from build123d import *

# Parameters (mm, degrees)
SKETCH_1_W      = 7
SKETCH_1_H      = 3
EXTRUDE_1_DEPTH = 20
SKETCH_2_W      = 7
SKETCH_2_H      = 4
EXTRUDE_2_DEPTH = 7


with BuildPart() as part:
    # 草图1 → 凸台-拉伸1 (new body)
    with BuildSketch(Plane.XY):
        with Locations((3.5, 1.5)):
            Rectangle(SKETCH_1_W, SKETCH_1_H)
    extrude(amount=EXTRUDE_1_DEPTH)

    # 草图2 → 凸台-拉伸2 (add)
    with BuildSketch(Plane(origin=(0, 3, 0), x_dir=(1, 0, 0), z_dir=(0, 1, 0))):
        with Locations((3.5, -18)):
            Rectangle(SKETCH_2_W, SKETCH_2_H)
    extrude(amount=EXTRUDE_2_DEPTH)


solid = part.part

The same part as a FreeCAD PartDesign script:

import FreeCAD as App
import Part
import Sketcher
from FreeCAD import Vector


def add_polygon(sketch, points):
    """Adds a closed chain of lines whose ends are joined by coincident constraints."""
    first, n = sketch.GeometryCount, len(points)
    for a, b in zip(points, points[1:] + points[:1]):
        sketch.addGeometry(Part.LineSegment(App.Vector(*a, 0), App.Vector(*b, 0)), False)
    for i in range(n):
        sketch.addConstraint(Sketcher.Constraint("Coincident", first + i, 2, first + (i + 1) % n, 1))

doc = App.newDocument("Part")
body = doc.addObject("PartDesign::Body", "Body")

# Sketch on XY plane
sketch1 = doc.addObject("Sketcher::SketchObject", "Sketch")
body.addObject(sketch1)
sketch1.AttachmentSupport = (doc.XY_Plane, [""])
sketch1.MapMode = "FlatFace"
add_polygon(sketch1, [(0, 3), (0, 0), (7, 0), (7, 3)])  # lines 0-3
sketch1.addConstraint([
    Sketcher.Constraint("Vertical", 0),
    Sketcher.Constraint("Horizontal", 1),
    Sketcher.Constraint("Vertical", 2),
    Sketcher.Constraint("Horizontal", 3),
    Sketcher.Constraint("Coincident", 0, 2, -1, 1),
    Sketcher.Constraint("DistanceX", 1, 1, 1, 2, 7.0),
    Sketcher.Constraint("DistanceY", 0, 2, 0, 1, 3.0),
])
pad1 = doc.addObject("PartDesign::Pad", "Pad")
body.addObject(pad1)
pad1.Profile = sketch1
pad1.Length = 20

# Sketch on XZ plane
sketch2 = doc.addObject("Sketcher::SketchObject", "Sketch001")
body.addObject(sketch2)
sketch2.AttachmentSupport = (doc.XZ_Plane, [""])
sketch2.MapMode = "FlatFace"
sketch2.AttachmentOffset = App.Placement(Vector(0, 0, -3), App.Rotation())
add_polygon(sketch2, [(0, 16), (0, 20), (7, 20), (7, 16)])  # lines 0-3
sketch2.addConstraint([
    Sketcher.Constraint("Vertical", 0),
    Sketcher.Constraint("Horizontal", 1),
    Sketcher.Constraint("Vertical", 2),
    Sketcher.Constraint("Horizontal", 3),
    Sketcher.Constraint("PointOnObject", 0, 2, -2),
    Sketcher.Constraint("DistanceX", 1, 1, 1, 2, 7.0),
    Sketcher.Constraint("DistanceY", 0, 1, 0, 2, 4.0),
    Sketcher.Constraint("DistanceY", -1, 1, 0, 2, 20.0),
])
pad2 = doc.addObject("PartDesign::Pad", "Pad001")
body.addObject(pad2)
pad2.Profile = sketch2
pad2.Length = 7
pad2.Reversed = True

doc.recompute()
